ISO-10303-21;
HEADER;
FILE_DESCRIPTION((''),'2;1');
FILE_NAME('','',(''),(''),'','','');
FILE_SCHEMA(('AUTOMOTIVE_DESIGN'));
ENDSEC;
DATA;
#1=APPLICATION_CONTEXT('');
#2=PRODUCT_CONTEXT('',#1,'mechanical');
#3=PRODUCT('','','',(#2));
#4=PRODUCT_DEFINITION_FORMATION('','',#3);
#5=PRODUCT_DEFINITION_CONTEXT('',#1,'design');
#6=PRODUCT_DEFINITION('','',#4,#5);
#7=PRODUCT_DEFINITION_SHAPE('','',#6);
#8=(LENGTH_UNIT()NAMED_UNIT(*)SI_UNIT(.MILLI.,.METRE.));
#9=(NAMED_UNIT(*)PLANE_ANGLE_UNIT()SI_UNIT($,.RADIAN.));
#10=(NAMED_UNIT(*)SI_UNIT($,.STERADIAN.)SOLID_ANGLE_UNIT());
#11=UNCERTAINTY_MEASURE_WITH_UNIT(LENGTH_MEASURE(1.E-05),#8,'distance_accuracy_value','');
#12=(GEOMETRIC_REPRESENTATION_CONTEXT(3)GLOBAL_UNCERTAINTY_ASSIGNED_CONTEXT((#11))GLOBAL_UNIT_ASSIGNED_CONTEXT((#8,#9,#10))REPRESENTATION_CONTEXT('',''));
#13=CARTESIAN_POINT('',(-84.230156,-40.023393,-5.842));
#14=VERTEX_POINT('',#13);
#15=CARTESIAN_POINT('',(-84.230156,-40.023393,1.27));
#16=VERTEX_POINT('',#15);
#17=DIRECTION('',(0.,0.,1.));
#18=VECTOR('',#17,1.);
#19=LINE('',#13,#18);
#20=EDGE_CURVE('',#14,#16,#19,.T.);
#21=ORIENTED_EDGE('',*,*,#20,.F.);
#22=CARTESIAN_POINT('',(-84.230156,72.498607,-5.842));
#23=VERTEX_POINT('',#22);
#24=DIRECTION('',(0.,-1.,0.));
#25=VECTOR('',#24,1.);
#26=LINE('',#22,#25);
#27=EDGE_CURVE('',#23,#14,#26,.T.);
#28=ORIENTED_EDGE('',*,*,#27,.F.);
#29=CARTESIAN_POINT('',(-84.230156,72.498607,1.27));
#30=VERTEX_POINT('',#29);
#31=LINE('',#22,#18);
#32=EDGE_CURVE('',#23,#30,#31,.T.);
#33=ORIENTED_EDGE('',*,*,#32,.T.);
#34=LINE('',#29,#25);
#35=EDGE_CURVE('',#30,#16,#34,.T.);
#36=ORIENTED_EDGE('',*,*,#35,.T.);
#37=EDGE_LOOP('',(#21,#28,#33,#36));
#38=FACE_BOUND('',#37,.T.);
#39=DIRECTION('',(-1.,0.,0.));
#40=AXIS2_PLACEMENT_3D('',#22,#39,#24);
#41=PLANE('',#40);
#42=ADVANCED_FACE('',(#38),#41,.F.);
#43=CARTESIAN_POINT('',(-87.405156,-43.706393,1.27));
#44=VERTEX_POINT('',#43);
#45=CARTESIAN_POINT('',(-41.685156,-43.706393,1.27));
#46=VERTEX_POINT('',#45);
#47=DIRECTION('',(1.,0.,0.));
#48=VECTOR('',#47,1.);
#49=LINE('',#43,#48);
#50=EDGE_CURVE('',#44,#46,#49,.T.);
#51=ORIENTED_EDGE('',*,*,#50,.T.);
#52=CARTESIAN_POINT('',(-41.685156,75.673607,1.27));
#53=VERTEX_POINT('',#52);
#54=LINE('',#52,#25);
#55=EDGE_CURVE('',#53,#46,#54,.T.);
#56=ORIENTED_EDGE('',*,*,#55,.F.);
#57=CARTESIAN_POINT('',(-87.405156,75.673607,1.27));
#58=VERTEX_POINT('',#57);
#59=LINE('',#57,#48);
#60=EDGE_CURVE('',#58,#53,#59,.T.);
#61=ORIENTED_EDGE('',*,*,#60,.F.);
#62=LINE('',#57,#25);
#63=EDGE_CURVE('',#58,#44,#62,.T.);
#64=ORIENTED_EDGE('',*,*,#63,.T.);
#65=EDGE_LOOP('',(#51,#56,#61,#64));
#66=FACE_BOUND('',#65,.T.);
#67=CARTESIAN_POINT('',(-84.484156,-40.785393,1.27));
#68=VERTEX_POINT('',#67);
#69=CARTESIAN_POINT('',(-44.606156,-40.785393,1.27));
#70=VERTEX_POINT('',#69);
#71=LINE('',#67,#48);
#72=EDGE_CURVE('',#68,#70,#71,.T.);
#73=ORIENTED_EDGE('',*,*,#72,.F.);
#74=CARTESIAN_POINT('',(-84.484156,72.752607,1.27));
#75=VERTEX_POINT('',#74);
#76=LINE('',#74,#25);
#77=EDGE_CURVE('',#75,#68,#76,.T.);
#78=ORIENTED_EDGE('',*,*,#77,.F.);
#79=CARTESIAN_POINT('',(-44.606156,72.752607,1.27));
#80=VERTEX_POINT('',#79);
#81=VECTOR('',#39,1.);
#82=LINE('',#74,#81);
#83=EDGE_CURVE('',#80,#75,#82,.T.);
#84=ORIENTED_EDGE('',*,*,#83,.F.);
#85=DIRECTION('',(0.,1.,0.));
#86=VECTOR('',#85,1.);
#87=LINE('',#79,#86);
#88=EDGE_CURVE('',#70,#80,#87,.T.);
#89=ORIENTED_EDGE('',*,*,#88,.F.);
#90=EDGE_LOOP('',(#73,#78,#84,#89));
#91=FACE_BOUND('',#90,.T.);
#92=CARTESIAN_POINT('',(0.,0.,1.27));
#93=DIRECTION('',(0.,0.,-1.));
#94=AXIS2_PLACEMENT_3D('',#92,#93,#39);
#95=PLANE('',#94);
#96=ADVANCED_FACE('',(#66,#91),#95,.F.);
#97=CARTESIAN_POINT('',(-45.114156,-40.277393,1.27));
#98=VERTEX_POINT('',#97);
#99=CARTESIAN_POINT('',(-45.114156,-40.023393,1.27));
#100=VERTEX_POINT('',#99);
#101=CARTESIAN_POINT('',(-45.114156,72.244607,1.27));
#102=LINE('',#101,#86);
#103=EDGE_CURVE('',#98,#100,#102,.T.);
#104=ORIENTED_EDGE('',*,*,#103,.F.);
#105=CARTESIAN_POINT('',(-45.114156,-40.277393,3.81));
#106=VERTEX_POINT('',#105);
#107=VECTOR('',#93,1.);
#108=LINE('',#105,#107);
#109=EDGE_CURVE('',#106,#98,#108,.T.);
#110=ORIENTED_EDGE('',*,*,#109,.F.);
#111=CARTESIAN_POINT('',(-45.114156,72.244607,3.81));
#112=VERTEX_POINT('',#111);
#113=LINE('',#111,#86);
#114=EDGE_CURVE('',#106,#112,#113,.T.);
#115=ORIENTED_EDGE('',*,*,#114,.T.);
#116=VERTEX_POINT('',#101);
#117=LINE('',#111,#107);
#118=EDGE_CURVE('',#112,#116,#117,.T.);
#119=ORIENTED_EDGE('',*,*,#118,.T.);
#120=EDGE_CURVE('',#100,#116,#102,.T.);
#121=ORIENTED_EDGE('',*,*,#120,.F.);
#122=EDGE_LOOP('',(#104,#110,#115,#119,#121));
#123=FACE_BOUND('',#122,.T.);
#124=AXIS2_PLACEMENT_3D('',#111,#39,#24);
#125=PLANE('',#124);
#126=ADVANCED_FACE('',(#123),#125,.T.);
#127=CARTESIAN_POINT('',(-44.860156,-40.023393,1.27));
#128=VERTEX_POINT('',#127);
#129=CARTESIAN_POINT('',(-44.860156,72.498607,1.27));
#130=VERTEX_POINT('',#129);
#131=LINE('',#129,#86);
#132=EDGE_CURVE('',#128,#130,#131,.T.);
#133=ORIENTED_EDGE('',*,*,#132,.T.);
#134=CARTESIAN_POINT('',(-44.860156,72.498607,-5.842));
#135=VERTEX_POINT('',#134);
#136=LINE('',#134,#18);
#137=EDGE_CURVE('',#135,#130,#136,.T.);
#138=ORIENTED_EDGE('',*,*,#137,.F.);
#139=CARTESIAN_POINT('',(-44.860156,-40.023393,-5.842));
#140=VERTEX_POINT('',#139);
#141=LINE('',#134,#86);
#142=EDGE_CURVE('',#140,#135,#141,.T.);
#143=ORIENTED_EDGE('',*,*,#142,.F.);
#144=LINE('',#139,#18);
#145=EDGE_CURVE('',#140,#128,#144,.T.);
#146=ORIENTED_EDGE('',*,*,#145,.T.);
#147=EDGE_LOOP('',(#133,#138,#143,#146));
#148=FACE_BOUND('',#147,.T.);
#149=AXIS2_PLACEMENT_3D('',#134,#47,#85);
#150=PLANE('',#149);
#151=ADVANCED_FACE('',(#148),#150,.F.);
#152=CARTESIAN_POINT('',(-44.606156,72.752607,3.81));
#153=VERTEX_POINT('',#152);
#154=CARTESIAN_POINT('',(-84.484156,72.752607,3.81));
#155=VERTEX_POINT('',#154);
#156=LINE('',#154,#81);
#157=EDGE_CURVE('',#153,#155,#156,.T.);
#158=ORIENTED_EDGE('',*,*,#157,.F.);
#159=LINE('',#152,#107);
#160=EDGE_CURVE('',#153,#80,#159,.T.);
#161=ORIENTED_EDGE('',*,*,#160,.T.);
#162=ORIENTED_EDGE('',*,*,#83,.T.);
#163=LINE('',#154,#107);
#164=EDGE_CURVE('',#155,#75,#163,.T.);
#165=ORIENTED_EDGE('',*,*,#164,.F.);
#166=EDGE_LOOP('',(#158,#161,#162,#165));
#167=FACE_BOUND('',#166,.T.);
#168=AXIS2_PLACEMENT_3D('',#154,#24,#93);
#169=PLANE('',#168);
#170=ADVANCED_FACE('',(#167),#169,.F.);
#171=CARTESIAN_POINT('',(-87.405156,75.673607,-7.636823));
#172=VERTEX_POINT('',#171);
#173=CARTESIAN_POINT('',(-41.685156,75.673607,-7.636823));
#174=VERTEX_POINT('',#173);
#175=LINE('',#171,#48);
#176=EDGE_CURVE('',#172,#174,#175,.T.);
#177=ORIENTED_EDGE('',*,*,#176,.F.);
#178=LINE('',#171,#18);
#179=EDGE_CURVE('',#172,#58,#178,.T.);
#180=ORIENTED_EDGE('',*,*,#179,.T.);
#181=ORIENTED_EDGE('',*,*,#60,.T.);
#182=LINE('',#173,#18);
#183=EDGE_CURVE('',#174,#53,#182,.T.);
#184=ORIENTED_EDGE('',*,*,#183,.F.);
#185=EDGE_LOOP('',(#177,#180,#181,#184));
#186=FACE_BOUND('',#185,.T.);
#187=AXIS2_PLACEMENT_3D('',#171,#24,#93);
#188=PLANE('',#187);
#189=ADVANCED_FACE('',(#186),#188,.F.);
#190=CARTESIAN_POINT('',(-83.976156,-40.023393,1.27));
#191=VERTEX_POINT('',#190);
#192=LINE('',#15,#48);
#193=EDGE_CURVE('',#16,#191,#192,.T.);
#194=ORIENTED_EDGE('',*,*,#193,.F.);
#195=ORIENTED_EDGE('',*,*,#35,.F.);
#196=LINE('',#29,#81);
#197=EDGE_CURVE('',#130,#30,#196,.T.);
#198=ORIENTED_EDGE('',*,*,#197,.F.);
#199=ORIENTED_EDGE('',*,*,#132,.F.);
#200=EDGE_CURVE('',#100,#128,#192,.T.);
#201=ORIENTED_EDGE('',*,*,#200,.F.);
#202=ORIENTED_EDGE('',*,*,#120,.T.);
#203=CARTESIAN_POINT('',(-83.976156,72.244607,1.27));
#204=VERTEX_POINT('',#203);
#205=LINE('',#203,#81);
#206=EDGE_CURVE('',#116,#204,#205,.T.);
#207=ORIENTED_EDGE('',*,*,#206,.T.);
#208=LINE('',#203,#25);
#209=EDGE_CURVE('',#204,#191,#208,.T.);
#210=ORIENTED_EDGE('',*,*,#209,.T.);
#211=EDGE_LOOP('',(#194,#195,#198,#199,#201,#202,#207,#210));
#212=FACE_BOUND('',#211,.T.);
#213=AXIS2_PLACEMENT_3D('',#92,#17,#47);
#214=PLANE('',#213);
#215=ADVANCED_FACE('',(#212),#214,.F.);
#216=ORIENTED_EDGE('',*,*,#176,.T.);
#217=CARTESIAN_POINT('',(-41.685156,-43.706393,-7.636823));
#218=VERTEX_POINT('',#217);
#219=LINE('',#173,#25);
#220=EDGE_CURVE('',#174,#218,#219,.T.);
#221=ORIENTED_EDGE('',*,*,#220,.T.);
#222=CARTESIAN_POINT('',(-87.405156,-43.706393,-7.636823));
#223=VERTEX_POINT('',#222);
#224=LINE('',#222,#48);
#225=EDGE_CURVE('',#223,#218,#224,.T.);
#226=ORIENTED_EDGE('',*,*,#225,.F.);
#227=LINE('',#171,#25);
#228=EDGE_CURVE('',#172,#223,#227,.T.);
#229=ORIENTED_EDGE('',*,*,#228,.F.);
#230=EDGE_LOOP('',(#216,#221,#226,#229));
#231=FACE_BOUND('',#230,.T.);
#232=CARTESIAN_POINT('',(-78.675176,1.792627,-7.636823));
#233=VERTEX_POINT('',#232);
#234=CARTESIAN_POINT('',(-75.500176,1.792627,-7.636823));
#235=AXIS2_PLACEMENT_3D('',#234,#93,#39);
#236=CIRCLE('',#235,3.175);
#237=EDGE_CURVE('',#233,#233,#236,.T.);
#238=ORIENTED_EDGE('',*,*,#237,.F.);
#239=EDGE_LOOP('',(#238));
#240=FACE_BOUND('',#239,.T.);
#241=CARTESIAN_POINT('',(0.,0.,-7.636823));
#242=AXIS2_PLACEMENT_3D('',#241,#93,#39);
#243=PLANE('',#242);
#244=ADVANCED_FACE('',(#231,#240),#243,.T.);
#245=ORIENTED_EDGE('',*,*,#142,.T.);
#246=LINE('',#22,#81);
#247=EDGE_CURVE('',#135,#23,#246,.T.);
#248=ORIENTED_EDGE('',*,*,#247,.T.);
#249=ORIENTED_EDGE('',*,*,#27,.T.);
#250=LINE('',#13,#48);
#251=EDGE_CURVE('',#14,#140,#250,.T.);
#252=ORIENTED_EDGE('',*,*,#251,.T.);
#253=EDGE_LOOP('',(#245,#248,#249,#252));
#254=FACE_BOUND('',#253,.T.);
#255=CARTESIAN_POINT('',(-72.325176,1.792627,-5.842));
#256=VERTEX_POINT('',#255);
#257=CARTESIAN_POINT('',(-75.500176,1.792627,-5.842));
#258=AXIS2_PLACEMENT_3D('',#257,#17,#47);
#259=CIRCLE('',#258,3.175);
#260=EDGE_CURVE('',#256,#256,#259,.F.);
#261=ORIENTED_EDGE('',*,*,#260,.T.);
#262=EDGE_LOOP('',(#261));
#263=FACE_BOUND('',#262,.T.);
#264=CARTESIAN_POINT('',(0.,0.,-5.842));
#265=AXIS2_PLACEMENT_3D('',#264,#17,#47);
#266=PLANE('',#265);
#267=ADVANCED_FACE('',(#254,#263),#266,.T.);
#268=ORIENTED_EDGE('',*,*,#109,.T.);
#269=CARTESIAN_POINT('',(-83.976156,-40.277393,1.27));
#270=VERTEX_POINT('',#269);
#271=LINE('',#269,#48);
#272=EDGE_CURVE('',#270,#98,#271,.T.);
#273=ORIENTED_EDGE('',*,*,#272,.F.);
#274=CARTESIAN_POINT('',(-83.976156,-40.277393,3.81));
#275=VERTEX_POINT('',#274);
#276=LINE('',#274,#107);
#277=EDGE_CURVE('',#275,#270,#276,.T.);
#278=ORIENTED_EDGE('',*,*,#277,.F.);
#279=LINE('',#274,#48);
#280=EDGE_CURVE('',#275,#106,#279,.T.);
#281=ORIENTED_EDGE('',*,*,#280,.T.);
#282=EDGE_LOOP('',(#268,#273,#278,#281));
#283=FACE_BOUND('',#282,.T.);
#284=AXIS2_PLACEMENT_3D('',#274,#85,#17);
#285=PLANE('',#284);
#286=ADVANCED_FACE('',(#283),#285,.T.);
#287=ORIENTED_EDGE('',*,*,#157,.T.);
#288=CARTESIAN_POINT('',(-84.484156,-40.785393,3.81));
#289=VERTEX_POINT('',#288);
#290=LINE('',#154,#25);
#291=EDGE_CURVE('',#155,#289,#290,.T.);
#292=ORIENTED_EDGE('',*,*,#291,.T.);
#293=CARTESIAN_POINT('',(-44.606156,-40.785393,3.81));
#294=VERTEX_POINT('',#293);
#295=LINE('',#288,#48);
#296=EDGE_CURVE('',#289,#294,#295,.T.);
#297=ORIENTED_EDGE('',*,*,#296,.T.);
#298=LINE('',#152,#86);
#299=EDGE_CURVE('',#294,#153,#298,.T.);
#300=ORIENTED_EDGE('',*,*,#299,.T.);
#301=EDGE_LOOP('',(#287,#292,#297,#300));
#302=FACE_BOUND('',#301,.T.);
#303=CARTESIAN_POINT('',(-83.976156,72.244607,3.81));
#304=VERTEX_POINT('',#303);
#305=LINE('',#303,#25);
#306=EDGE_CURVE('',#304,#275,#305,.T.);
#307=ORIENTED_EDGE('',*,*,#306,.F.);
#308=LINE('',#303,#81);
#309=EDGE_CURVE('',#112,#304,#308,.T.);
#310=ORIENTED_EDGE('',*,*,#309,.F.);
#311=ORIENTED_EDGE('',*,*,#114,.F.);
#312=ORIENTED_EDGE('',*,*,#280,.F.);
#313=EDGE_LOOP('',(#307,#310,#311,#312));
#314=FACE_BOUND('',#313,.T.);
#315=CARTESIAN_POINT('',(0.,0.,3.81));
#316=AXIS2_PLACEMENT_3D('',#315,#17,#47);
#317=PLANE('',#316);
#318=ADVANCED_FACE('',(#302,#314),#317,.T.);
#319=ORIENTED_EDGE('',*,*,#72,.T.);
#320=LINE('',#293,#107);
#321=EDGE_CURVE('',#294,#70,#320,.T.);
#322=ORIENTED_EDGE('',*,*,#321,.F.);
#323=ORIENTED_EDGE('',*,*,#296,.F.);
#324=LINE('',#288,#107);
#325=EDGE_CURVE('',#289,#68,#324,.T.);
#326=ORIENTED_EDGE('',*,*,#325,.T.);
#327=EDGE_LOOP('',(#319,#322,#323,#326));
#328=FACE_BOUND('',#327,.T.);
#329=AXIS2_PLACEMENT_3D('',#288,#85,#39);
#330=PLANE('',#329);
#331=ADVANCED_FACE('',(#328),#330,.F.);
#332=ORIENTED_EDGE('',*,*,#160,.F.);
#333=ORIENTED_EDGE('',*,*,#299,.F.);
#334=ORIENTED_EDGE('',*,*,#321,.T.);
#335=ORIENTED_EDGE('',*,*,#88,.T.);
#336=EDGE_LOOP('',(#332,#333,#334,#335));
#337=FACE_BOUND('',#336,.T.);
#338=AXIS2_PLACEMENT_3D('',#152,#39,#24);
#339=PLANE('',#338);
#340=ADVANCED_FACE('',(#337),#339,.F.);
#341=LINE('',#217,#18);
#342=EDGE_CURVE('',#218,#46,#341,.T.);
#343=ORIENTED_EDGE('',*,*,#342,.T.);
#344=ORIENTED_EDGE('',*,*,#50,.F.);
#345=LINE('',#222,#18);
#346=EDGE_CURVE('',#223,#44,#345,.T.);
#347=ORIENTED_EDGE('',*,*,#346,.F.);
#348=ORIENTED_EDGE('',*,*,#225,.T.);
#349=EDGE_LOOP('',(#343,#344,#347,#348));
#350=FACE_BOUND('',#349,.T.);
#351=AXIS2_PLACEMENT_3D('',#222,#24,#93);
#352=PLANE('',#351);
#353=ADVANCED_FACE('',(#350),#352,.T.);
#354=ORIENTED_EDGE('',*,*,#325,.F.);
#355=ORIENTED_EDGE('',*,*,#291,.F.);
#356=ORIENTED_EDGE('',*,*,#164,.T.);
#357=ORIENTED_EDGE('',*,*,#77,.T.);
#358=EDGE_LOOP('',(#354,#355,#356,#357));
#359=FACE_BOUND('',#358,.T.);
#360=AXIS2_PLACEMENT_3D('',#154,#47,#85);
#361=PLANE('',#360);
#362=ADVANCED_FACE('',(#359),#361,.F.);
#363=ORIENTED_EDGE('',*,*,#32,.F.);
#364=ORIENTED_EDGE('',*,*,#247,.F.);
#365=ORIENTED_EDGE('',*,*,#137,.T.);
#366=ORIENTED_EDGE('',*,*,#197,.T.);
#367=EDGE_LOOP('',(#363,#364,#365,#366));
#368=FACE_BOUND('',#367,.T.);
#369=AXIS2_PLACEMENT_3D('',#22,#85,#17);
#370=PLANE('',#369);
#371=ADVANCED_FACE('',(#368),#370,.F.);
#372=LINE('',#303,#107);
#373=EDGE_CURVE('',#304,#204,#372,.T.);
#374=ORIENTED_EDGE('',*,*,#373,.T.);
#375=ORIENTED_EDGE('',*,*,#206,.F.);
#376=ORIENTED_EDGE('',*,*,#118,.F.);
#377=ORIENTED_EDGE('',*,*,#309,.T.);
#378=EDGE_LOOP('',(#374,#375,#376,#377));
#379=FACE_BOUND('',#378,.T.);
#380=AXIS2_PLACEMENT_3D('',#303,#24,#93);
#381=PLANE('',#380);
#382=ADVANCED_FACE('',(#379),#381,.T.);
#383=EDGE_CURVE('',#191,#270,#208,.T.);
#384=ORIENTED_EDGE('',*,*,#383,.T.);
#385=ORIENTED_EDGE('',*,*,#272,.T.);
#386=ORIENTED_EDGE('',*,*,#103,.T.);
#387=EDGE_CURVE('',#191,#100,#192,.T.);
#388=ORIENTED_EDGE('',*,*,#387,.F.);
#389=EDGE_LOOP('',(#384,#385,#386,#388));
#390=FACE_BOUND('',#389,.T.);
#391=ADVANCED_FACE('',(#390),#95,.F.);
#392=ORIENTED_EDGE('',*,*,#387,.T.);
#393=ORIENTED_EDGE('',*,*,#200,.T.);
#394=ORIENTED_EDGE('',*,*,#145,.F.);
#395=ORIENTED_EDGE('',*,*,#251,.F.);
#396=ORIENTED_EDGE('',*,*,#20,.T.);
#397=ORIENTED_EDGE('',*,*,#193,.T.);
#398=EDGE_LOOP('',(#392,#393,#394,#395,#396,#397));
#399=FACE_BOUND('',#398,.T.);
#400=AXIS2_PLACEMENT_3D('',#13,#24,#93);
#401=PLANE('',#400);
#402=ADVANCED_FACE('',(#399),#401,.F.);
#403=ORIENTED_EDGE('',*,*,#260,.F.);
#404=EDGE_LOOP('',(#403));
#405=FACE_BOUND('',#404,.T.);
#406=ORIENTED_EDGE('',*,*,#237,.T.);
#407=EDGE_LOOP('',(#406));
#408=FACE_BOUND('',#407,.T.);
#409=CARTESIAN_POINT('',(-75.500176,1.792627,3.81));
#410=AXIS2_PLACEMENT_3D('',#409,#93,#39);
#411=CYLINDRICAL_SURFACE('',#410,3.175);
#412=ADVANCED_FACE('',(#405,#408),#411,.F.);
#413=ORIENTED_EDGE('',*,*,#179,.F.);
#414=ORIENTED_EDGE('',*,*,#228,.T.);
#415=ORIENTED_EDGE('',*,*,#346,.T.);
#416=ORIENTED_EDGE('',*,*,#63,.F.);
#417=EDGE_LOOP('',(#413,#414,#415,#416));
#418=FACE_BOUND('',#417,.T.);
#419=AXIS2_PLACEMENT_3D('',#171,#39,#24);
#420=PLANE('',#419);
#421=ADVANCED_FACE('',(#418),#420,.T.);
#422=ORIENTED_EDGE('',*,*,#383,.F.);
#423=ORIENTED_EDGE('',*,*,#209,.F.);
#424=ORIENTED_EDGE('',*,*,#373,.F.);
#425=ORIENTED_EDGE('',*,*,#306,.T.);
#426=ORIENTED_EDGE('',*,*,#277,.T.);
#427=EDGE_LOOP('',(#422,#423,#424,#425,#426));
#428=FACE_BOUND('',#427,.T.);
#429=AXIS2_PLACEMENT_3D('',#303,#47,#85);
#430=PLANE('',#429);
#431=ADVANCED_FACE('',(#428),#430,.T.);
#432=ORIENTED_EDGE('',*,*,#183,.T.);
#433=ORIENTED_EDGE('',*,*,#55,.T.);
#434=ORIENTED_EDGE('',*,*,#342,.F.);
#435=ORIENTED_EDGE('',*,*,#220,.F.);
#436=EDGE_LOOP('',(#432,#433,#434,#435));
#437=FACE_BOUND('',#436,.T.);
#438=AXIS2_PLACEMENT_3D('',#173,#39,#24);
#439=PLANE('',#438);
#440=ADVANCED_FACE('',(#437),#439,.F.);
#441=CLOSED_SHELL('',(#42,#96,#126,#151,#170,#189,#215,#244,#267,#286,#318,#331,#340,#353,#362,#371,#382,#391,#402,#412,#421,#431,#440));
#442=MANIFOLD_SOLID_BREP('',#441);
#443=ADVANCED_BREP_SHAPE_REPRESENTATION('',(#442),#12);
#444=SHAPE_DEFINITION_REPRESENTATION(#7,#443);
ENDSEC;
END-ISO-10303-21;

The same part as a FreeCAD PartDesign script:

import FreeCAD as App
import Part
import Sketcher

V = App.Vector
Q = App.Units.Quantity


def add_polygon(sketch, points):
    """Adds a closed chain of lines whose ends are joined by coincident constraints."""
    first, n = sketch.GeometryCount, len(points)
    for a, b in zip(points, points[1:] + points[:1]):
        sketch.addGeometry(Part.LineSegment(App.Vector(*a, 0), App.Vector(*b, 0)), False)
    for i in range(n):
        sketch.addConstraint(Sketcher.Constraint("Coincident", first + i, 2, first + (i + 1) % n, 1))

doc = App.newDocument("Part")
params = doc.addObject("Spreadsheet::Sheet", "Params")
for row, (alias, value) in enumerate([
    ("sketch1_width", "1.8 in"),
    ("sketch1_height", "4.7 in"),
    ("pad1_length", "0.05 in"),
    ("pad1_length2", "7.636823 mm"),
    ("sketch2_width", "1.57 in"),
    ("sketch2_width2", "1.53 in"),
    ("sketch2_height", "4.47 in"),
    ("sketch2_height2", "4.43 in"),
    ("pad2_length", "0.1 in"),
    ("sketch3_diameter", "0.25 in"),
    ("sketch4_width", "1.55 in"),
    ("sketch4_height", "4.43 in"),
    ("pocket2_length", "0.28 in"),
], start=1):
    params.set(f"A{row}", alias)
    params.set(f"B{row}", "=" + value)
    params.setAlias(f"B{row}", alias)

body = doc.addObject("PartDesign::Body", "Body")

sketch1 = body.newObject("Sketcher::SketchObject", "Sketch")
sketch1.AttachmentSupport = (doc.getObject("XY_Plane"), [""])
sketch1.MapMode = "FlatFace"
add_polygon(sketch1, [(-87, 76), (-87, -44), (-42, -44), (-42, 76)])
sketch1.addConstraint([
    Sketcher.Constraint("Vertical", 0),
    Sketcher.Constraint("Horizontal", 1),
    Sketcher.Constraint("Vertical", 2),
    Sketcher.Constraint("Horizontal", 3),
    Sketcher.Constraint("DistanceX", 1, 1, 1, 2, Q("1.8 in")),
    Sketcher.Constraint("DistanceY", 0, 2, 0, 1, Q("4.7 in")),
    Sketcher.Constraint("DistanceX", 0, 2, -1, 1, Q("87.405156 mm")),
    Sketcher.Constraint("DistanceY", 0, 2, -1, 1, Q("43.706393 mm")),
])
sketch1.setExpression("Constraints[8]", "Params.sketch1_width")
sketch1.setExpression("Constraints[9]", "Params.sketch1_height")
pad1 = body.newObject("PartDesign::Pad", "Pad")
pad1.Profile = sketch1
pad1.Type = "TwoLengths"
pad1.setExpression("Length", "Params.pad1_length")
pad1.setExpression("Length2", "Params.pad1_length2")

sketch2 = body.newObject("Sketcher::SketchObject", "Sketch001")
sketch2.AttachmentSupport = (doc.getObject("XY_Plane"), [""])
sketch2.MapMode = "FlatFace"
sketch2.AttachmentOffset = App.Placement(V(0, 0, 0.05 * 25.4), App.Rotation())
add_polygon(sketch2, [(-84, 73), (-84, -41), (-45, -41), (-45, 73)])
add_polygon(sketch2, [(-45, -40), (-84, -40), (-84, 72), (-45, 72)])
sketch2.addConstraint([
    Sketcher.Constraint("Vertical", 0),
    Sketcher.Constraint("Horizontal", 1),
    Sketcher.Constraint("Vertical", 2),
    Sketcher.Constraint("Horizontal", 3),
    Sketcher.Constraint("Horizontal", 4),
    Sketcher.Constraint("Vertical", 5),
    Sketcher.Constraint("Horizontal", 6),
    Sketcher.Constraint("Vertical", 7),
    Sketcher.Constraint("DistanceX", 1, 1, 1, 2, Q("1.57 in")),
    Sketcher.Constraint("DistanceX", 4, 2, 4, 1, Q("1.53 in")),
    Sketcher.Constraint("DistanceY", 0, 2, 0, 1, Q("4.47 in")),
    Sketcher.Constraint("DistanceY", 5, 1, 5, 2, Q("4.43 in")),
    Sketcher.Constraint("DistanceX", 0, 2, 4, 2, Q("0.02 in")),
    Sketcher.Constraint("DistanceY", 0, 2, 4, 2, Q("0.02 in")),
    Sketcher.Constraint("DistanceX", 0, 2, -1, 1, Q("84.484156 mm")),
    Sketcher.Constraint("DistanceY", 0, 2, -1, 1, Q("40.785393 mm")),
])
sketch2.setExpression("Constraints[16]", "Params.sketch2_width")
sketch2.setExpression("Constraints[17]", "Params.sketch2_width2")
sketch2.setExpression("Constraints[18]", "Params.sketch2_height")
sketch2.setExpression("Constraints[19]", "Params.sketch2_height2")
pad2 = body.newObject("PartDesign::Pad", "Pad001")
pad2.Profile = sketch2
pad2.setExpression("Length", "Params.pad2_length")

sketch3 = body.newObject("Sketcher::SketchObject", "Sketch002")
sketch3.AttachmentSupport = (doc.getObject("XY_Plane"), [""])
sketch3.MapMode = "FlatFace"
sketch3.AttachmentOffset = App.Placement(V(0, 0, -7.636823), App.Rotation())
sketch3.addGeometry(Part.Circle(V(-75.5, 1.8, 0), V(0, 0, 1), 3.2), False)
sketch3.addConstraint([
    Sketcher.Constraint("Diameter", 0, Q("0.25 in")),
    Sketcher.Constraint("DistanceX", 0, 3, -1, 1, Q("75.500176 mm")),
    Sketcher.Constraint("DistanceY", -1, 1, 0, 3, Q("1.792627 mm")),
])
sketch3.setExpression("Constraints[0]", "Params.sketch3_diameter")
pocket1 = body.newObject("PartDesign::Pocket", "Pocket")
pocket1.Profile = sketch3
pocket1.Type = "ThroughAll"
pocket1.Reversed = True

sketch4 = body.newObject("Sketcher::SketchObject", "Sketch003")
sketch4.AttachmentSupport = (doc.getObject("XY_Plane"), [""])
sketch4.MapMode = "FlatFace"
sketch4.AttachmentOffset = App.Placement(V(0, 0, 0.05 * 25.4), App.Rotation())
add_polygon(sketch4, [(-84, 72), (-84, -40), (-45, -40), (-45, 72)])
sketch4.addConstraint([
    Sketcher.Constraint("Vertical", 0),
    Sketcher.Constraint("Horizontal", 1),
    Sketcher.Constraint("Vertical", 2),
    Sketcher.Constraint("Horizontal", 3),
    Sketcher.Constraint("DistanceX", 1, 1, 1, 2, Q("1.55 in")),
    Sketcher.Constraint("DistanceY", 0, 2, 0, 1, Q("4.43 in")),
    Sketcher.Constraint("DistanceX", 0, 2, -1, 1, Q("84.230156 mm")),
    Sketcher.Constraint("DistanceY", 0, 2, -1, 1, Q("40.023393 mm")),
])
sketch4.setExpression("Constraints[8]", "Params.sketch4_width")
sketch4.setExpression("Constraints[9]", "Params.sketch4_height")
pocket2 = body.newObject("PartDesign::Pocket", "Pocket001")
pocket2.Profile = sketch4
pocket2.setExpression("Length", "Params.pocket2_length")

doc.recompute()
